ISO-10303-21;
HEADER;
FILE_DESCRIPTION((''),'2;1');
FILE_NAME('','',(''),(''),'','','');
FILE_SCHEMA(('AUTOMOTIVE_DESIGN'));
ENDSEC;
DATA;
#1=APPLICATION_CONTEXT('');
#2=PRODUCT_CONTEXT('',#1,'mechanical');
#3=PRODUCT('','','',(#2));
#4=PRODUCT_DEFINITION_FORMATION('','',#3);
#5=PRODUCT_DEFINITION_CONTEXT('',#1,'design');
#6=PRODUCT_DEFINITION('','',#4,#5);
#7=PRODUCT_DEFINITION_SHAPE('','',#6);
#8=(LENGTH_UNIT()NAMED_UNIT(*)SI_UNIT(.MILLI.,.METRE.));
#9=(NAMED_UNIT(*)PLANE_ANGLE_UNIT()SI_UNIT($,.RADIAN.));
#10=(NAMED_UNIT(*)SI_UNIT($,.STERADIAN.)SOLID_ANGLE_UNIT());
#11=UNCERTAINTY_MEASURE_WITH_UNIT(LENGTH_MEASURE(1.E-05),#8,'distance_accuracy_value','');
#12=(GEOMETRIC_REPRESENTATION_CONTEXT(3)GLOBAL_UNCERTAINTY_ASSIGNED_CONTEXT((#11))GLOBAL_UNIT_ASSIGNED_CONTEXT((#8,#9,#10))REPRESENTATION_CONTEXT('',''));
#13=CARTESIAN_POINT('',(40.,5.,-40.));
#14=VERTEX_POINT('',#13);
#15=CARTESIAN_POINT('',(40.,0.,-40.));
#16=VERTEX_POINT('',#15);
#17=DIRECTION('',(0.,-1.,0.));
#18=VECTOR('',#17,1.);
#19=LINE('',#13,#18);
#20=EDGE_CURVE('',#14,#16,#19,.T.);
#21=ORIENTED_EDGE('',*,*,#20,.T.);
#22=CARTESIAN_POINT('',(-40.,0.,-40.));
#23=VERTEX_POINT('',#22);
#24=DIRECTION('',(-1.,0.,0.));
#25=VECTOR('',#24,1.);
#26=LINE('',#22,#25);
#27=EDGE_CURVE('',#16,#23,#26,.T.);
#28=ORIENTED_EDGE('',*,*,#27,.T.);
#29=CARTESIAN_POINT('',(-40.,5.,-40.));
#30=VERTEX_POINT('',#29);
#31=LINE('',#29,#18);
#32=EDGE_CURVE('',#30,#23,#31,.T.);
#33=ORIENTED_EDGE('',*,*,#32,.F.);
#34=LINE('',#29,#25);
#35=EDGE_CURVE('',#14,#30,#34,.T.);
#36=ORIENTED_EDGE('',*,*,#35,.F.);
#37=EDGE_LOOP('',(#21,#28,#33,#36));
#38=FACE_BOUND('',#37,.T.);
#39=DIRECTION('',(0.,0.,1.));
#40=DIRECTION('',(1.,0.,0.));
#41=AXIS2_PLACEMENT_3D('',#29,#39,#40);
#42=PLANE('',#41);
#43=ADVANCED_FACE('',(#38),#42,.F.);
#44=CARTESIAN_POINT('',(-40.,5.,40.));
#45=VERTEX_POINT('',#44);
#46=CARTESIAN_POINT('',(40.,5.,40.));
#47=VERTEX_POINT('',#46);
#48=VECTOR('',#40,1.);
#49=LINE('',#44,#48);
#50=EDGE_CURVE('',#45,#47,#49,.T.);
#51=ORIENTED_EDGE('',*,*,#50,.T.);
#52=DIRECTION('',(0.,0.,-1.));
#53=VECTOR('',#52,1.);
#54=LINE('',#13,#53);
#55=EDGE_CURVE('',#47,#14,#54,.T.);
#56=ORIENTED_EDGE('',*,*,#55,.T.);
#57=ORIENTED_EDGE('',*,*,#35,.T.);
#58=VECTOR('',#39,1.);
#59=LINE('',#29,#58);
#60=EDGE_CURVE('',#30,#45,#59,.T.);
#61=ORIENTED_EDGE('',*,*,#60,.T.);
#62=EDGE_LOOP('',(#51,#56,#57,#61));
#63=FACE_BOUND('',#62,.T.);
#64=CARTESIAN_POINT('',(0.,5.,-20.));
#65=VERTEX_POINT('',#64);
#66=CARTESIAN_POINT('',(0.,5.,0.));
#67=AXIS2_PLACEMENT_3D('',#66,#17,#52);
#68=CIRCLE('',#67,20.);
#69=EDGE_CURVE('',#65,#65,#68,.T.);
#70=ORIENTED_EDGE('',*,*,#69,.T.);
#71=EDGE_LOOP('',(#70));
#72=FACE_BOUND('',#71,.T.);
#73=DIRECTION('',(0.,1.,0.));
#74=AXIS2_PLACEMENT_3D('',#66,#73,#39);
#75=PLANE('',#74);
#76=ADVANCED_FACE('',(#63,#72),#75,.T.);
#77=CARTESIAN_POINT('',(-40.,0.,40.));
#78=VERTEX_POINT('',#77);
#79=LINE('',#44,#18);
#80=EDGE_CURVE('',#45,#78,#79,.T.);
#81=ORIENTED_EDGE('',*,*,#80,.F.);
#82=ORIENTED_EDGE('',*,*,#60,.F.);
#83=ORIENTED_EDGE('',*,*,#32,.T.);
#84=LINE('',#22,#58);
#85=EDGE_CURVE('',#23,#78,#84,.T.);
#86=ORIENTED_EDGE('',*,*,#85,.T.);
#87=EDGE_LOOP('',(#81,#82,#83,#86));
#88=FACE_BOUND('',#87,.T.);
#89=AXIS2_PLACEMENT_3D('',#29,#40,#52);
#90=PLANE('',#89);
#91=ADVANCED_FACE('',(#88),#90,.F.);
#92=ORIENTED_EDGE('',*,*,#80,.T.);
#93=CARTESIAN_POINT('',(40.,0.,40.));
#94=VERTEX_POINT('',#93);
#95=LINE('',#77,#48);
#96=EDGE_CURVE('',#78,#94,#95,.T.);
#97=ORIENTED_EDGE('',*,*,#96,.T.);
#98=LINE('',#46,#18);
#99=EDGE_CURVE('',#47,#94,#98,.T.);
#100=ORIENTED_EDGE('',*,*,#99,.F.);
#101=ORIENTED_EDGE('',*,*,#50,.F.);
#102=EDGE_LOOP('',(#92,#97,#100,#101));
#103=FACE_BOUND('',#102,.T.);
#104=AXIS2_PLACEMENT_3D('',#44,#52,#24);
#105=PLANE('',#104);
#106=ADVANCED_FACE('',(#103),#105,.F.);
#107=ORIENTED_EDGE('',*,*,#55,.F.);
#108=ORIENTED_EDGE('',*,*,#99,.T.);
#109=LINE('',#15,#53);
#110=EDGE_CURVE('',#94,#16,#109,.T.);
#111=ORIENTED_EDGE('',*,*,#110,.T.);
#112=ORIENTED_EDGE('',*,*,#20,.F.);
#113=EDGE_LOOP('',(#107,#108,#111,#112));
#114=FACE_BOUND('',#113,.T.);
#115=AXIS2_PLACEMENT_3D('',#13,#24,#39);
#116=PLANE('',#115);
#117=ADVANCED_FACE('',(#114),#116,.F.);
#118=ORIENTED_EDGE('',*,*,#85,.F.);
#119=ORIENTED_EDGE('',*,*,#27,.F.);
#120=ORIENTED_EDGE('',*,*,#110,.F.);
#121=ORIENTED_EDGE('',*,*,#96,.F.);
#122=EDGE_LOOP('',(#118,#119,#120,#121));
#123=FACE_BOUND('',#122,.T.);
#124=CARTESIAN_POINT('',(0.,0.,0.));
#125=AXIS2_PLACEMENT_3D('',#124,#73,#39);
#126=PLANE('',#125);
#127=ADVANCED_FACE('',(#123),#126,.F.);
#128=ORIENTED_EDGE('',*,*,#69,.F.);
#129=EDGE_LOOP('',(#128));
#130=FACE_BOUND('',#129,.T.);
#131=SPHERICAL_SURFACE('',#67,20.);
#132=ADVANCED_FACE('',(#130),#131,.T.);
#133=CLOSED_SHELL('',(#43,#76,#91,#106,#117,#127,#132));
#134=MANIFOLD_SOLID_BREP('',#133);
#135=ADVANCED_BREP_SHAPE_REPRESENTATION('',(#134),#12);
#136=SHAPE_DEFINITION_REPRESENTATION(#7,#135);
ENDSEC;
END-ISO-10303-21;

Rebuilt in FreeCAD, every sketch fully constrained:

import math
import FreeCAD as App
import Part
import Sketcher

V = App.Vector


def add_polygon(sketch, points):
    """Adds a closed chain of lines whose ends are joined by coincident constraints."""
    first, n = sketch.GeometryCount, len(points)
    for a, b in zip(points, points[1:] + points[:1]):
        sketch.addGeometry(Part.LineSegment(App.Vector(*a, 0), App.Vector(*b, 0)), False)
    for i in range(n):
        sketch.addConstraint(Sketcher.Constraint("Coincident", first + i, 2, first + (i + 1) % n, 1))

doc = App.newDocument("Part")
body = doc.addObject("PartDesign::Body", "Body")

sketch1 = body.newObject("Sketcher::SketchObject", "Sketch")
sketch1.AttachmentSupport = (doc.getObject("XZ_Plane"), [""])
sketch1.MapMode = "FlatFace"
add_polygon(sketch1, [(-40, -40), (-40, 40), (40, 40), (40, -40)])
sketch1.addConstraint([
    Sketcher.Constraint("Vertical", 0),
    Sketcher.Constraint("Horizontal", 1),
    Sketcher.Constraint("Vertical", 2),
    Sketcher.Constraint("Horizontal", 3),
    Sketcher.Constraint("Symmetric", 0, 2, 2, 2, -1, 1),
    Sketcher.Constraint("Equal", 3, 0),
    Sketcher.Constraint("DistanceX", 1, 1, 1, 2, 80.0),
])
pad1 = body.newObject("PartDesign::Pad", "Pad")
pad1.Profile = sketch1
pad1.Length = 5
pad1.Reversed = True

sketch2 = body.newObject("Sketcher::SketchObject", "Sketch001")
sketch2.AttachmentSupport = (doc.getObject("YZ_Plane"), [""])
sketch2.MapMode = "FlatFace"
sketch2.addGeometry([
    Part.LineSegment(V(5, 20, 0), V(5, 0, 0)),
    Part.LineSegment(V(5, 0, 0), V(25, 0, 0)),
    Part.ArcOfCircle(Part.Circle(V(5, 0, 0), V(0, 0, 1), 20), math.radians(0), math.radians(90)),
], False)
sketch2.addConstraint([
    Sketcher.Constraint("Coincident", 0, 2, 1, 1),
    Sketcher.Constraint("Coincident", 1, 2, 2, 1),
    Sketcher.Constraint("Coincident", 2, 2, 0, 1),
    Sketcher.Constraint("Vertical", 0),
    Sketcher.Constraint("Horizontal", 1),
    Sketcher.Constraint("Coincident", 0, 2, 2, 3),
    Sketcher.Constraint("PointOnObject", 2, 3, -1),
    Sketcher.Constraint("Radius", 2, 20.0),
    Sketcher.Constraint("DistanceX", -1, 1, 2, 3, 5.0),
])
revolution = body.newObject("PartDesign::Revolution", "Revolution")
revolution.Profile = sketch2
revolution.ReferenceAxis = (sketch2, ["H_Axis"])
revolution.Angle = 360

doc.recompute()
